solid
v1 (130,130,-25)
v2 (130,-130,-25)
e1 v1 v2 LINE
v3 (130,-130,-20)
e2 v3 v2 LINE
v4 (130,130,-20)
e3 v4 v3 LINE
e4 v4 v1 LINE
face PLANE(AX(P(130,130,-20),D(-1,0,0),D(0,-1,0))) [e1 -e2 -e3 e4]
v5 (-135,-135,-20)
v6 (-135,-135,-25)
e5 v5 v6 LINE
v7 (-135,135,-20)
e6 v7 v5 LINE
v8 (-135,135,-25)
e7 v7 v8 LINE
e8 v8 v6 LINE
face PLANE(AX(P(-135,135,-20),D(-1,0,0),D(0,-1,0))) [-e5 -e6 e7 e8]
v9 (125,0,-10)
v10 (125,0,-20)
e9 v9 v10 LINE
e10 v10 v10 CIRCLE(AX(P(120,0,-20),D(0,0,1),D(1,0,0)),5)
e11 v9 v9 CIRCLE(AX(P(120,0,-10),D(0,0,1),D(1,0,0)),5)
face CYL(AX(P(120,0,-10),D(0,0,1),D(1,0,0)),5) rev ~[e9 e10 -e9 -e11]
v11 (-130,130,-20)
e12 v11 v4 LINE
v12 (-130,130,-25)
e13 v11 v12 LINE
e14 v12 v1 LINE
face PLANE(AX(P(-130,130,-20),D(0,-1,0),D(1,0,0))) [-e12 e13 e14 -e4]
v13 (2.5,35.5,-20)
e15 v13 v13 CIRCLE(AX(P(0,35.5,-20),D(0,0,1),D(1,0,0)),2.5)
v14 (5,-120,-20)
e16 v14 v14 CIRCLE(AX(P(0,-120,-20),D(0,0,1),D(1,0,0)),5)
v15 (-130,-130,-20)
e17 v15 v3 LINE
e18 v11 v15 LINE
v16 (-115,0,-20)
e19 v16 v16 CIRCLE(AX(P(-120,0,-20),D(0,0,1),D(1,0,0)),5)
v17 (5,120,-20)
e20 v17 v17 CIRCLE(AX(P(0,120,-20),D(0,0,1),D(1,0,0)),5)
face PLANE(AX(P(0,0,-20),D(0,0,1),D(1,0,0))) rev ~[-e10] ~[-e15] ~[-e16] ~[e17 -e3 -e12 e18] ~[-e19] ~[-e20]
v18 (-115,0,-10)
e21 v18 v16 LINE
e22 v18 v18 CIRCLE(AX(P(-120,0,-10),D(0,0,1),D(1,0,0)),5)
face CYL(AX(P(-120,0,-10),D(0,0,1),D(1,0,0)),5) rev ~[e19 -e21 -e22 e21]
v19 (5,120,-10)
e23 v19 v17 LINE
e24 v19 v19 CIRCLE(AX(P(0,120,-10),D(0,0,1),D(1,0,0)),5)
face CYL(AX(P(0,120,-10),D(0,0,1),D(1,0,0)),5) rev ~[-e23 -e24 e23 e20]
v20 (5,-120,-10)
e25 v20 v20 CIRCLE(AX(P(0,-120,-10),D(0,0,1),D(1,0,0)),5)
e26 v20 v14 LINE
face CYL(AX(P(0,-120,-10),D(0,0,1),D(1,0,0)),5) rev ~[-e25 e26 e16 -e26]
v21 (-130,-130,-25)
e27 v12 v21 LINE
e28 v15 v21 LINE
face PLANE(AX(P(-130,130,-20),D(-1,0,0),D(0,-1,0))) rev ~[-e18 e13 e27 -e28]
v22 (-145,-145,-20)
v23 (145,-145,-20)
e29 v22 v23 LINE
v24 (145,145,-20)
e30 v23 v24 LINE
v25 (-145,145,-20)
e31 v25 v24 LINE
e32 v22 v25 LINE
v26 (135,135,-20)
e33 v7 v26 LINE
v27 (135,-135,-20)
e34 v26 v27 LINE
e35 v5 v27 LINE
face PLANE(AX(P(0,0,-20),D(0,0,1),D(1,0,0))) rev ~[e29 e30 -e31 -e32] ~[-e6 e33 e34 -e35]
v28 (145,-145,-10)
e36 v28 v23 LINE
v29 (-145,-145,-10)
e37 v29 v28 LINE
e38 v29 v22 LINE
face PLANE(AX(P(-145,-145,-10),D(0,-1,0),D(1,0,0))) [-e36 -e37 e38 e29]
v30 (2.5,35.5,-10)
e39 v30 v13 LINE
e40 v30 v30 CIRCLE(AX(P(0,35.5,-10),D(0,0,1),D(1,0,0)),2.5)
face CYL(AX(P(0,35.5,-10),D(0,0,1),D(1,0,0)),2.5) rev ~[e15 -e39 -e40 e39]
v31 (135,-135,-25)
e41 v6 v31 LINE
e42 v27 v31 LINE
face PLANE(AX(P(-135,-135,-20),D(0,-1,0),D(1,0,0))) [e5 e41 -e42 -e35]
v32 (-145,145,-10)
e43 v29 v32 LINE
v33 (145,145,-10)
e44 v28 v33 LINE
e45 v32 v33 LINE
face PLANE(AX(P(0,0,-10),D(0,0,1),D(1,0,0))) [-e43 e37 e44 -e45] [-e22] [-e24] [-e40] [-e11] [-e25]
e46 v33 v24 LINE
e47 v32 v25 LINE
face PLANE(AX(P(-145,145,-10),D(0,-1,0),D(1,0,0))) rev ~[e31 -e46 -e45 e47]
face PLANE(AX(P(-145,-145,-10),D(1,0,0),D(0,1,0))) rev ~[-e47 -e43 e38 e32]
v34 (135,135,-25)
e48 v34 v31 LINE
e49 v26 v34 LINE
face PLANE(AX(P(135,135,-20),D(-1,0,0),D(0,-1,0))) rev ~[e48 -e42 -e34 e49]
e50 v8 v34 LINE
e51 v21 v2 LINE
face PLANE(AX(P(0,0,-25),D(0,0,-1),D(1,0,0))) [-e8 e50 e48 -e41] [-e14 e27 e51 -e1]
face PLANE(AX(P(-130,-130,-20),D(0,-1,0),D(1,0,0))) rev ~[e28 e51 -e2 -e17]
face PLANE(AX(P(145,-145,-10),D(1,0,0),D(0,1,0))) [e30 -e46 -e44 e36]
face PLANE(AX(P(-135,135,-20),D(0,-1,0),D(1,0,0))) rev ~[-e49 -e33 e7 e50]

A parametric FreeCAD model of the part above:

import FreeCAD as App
import Part
import Sketcher

V = App.Vector

doc = App.newDocument("Part")
params = doc.addObject("Spreadsheet::Sheet", "Params")
for row, (alias, value) in enumerate([
    ("sketch1_width", "290 mm"),
    ("pad1_length", "10 mm"),
    ("sketch2_diameter", "10 mm"),
    ("sketch2_diameter2", "5 mm"),
    ("sketch3_width", "270 mm"),
    ("sketch3_width2", "260 mm"),
    ("pad2_length", "5 mm"),
], start=1):
    params.set(f"A{row}", alias)
    params.set(f"B{row}", "=" + value)
    params.setAlias(f"B{row}", alias)

body = doc.addObject("PartDesign::Body", "Body")

# Sketch on XY plane
sketch1 = body.newObject("Sketcher::SketchObject", "Sketch")
sketch1.AttachmentSupport = (doc.getObject("XY_Plane"), [""])
sketch1.MapMode = "FlatFace"
sketch1.addGeometry(Part.LineSegment(V(-145, 145, 0), V(-145, -145, 0)), False)
sketch1.addGeometry(Part.LineSegment(V(-145, -145, 0), V(145, -145, 0)), False)
sketch1.addGeometry(Part.LineSegment(V(145, -145, 0), V(145, 145, 0)), False)
sketch1.addGeometry(Part.LineSegment(V(145, 145, 0), V(-145, 145, 0)), False)
sketch1.addConstraint(Sketcher.Constraint("Coincident", 0, 2, 1, 1))
sketch1.addConstraint(Sketcher.Constraint("Coincident", 1, 2, 2, 1))
sketch1.addConstraint(Sketcher.Constraint("Coincident", 2, 2, 3, 1))
sketch1.addConstraint(Sketcher.Constraint("Coincident", 3, 2, 0, 1))
sketch1.addConstraint(Sketcher.Constraint("Vertical", 0))
sketch1.addConstraint(Sketcher.Constraint("Horizontal", 1))
sketch1.addConstraint(Sketcher.Constraint("Vertical", 2))
sketch1.addConstraint(Sketcher.Constraint("Horizontal", 3))
sketch1.addConstraint(Sketcher.Constraint("Symmetric", 0, 2, 2, 2, -1, 1))
sketch1.addConstraint(Sketcher.Constraint("Equal", 3, 0))
sketch1.addConstraint(Sketcher.Constraint("DistanceX", 1, 1, 1, 2, 290.0))
sketch1.setExpression("Constraints[10]", "Params.sketch1_width")
pad1 = body.newObject("PartDesign::Pad", "Pad")
pad1.Profile = sketch1
pad1.setExpression("Length", "Params.pad1_length")
pad1.Reversed = True

# Sketch on XY plane
sketch2 = body.newObject("Sketcher::SketchObject", "Sketch001")
sketch2.AttachmentSupport = (doc.getObject("XY_Plane"), [""])
sketch2.MapMode = "FlatFace"
sketch2.addGeometry(Part.Circle(V(-120, 0, 0), V(0, 0, 1), 5), False)
sketch2.addGeometry(Part.Circle(V(0, 120, 0), V(0, 0, 1), 5), False)
sketch2.addGeometry(Part.Circle(V(120, 0, 0), V(0, 0, 1), 5), False)
sketch2.addGeometry(Part.Circle(V(0, -120, 0), V(0, 0, 1), 5), False)
sketch2.addGeometry(Part.Circle(V(0, 35.5, 0), V(0, 0, 1), 2.5), False)
sketch2.addConstraint(Sketcher.Constraint("Equal", 0, 1))
sketch2.addConstraint(Sketcher.Constraint("Equal", 1, 2))
sketch2.addConstraint(Sketcher.Constraint("Equal", 2, 3))
sketch2.addConstraint(Sketcher.Constraint("Symmetric", 0, 3, 2, 3, -1, 1))
sketch2.addConstraint(Sketcher.Constraint("Symmetric", 1, 3, 3, 3, -1, 1))
sketch2.addConstraint(Sketcher.Constraint("PointOnObject", 0, 3, -1))
sketch2.addConstraint(Sketcher.Constraint("PointOnObject", 1, 3, -2))
sketch2.addConstraint(Sketcher.Constraint("PointOnObject", 4, 3, -2))
sketch2.addConstraint(Sketcher.Constraint("Diameter", 0, 10.0))
sketch2.addConstraint(Sketcher.Constraint("Diameter", 4, 5.0))
sketch2.addConstraint(Sketcher.Constraint("DistanceX", 0, 3, -1, 1, 120.0))
sketch2.addConstraint(Sketcher.Constraint("DistanceY", -1, 1, 1, 3, 120.0))
sketch2.addConstraint(Sketcher.Constraint("DistanceY", -1, 1, 4, 3, 35.5))
sketch2.setExpression("Constraints[8]", "Params.sketch2_diameter")
sketch2.setExpression("Constraints[9]", "Params.sketch2_diameter2")
pocket1 = body.newObject("PartDesign::Pocket", "Pocket")
pocket1.Profile = sketch2
pocket1.Type = "ThroughAll"

# Sketch on XY plane
sketch3 = body.newObject("Sketcher::SketchObject", "Sketch002")
sketch3.AttachmentSupport = (doc.getObject("XY_Plane"), [""])
sketch3.MapMode = "FlatFace"
sketch3.AttachmentOffset = App.Placement(V(0, 0, -10), App.Rotation())
sketch3.addGeometry(Part.LineSegment(V(-135, -135, 0), V(-135, 135, 0)), False)
sketch3.addGeometry(Part.LineSegment(V(-135, 135, 0), V(135, 135, 0)), False)
sketch3.addGeometry(Part.LineSegment(V(135, 135, 0), V(135, -135, 0)), False)
sketch3.addGeometry(Part.LineSegment(V(135, -135, 0), V(-135, -135, 0)), False)
sketch3.addGeometry(Part.LineSegment(V(130, 130, 0), V(-130, 130, 0)), False)
sketch3.addGeometry(Part.LineSegment(V(-130, 130, 0), V(-130, -130, 0)), False)
sketch3.addGeometry(Part.LineSegment(V(-130, -130, 0), V(130, -130, 0)), False)
sketch3.addGeometry(Part.LineSegment(V(130, -130, 0), V(130, 130, 0)), False)
sketch3.addConstraint(Sketcher.Constraint("Coincident", 0, 2, 1, 1))
sketch3.addConstraint(Sketcher.Constraint("Coincident", 1, 2, 2, 1))
sketch3.addConstraint(Sketcher.Constraint("Coincident", 2, 2, 3, 1))
sketch3.addConstraint(Sketcher.Constraint("Coincident", 3, 2, 0, 1))
sketch3.addConstraint(Sketcher.Constraint("Coincident", 4, 2, 5, 1))
sketch3.addConstraint(Sketcher.Constraint("Coincident", 5, 2, 6, 1))
sketch3.addConstraint(Sketcher.Constraint("Coincident", 6, 2, 7, 1))
sketch3.addConstraint(Sketcher.Constraint("Coincident", 7, 2, 4, 1))
sketch3.addConstraint(Sketcher.Constraint("Vertical", 0))
sketch3.addConstraint(Sketcher.Constraint("Horizontal", 1))
sketch3.addConstraint(Sketcher.Constraint("Vertical", 2))
sketch3.addConstraint(Sketcher.Constraint("Horizontal", 3))
sketch3.addConstraint(Sketcher.Constraint("Horizontal", 4))
sketch3.addConstraint(Sketcher.Constraint("Vertical", 5))
sketch3.addConstraint(Sketcher.Constraint("Horizontal", 6))
sketch3.addConstraint(Sketcher.Constraint("Vertical", 7))
sketch3.addConstraint(Sketcher.Constraint("Symmetric", 0, 2, 2, 2, -1, 1))
sketch3.addConstraint(Sketcher.Constraint("Symmetric", 4, 2, 6, 2, -1, 1))
sketch3.addConstraint(Sketcher.Constraint("Equal", 3, 0))
sketch3.addConstraint(Sketcher.Constraint("Equal", 6, 5))
sketch3.addConstraint(Sketcher.Constraint("DistanceX", 1, 1, 1, 2, 270.0))
sketch3.addConstraint(Sketcher.Constraint("DistanceX", 4, 2, 4, 1, 260.0))
sketch3.setExpression("Constraints[20]", "Params.sketch3_width")
sketch3.setExpression("Constraints[21]", "Params.sketch3_width2")
pad2 = body.newObject("PartDesign::Pad", "Pad001")
pad2.Profile = sketch3
pad2.setExpression("Length", "Params.pad2_length")
pad2.Reversed = True
body2 = doc.addObject("PartDesign::Body", "Body001")
doc.recompute()

body.Placement = App.Placement(V(0, 0, -10), App.Rotation(V(0, 0, 1), 0))
boolean = body2.newObject("PartDesign::Boolean", "Boolean")
boolean.Type = "Fuse"
boolean.addObjects([body])

doc.recompute()
